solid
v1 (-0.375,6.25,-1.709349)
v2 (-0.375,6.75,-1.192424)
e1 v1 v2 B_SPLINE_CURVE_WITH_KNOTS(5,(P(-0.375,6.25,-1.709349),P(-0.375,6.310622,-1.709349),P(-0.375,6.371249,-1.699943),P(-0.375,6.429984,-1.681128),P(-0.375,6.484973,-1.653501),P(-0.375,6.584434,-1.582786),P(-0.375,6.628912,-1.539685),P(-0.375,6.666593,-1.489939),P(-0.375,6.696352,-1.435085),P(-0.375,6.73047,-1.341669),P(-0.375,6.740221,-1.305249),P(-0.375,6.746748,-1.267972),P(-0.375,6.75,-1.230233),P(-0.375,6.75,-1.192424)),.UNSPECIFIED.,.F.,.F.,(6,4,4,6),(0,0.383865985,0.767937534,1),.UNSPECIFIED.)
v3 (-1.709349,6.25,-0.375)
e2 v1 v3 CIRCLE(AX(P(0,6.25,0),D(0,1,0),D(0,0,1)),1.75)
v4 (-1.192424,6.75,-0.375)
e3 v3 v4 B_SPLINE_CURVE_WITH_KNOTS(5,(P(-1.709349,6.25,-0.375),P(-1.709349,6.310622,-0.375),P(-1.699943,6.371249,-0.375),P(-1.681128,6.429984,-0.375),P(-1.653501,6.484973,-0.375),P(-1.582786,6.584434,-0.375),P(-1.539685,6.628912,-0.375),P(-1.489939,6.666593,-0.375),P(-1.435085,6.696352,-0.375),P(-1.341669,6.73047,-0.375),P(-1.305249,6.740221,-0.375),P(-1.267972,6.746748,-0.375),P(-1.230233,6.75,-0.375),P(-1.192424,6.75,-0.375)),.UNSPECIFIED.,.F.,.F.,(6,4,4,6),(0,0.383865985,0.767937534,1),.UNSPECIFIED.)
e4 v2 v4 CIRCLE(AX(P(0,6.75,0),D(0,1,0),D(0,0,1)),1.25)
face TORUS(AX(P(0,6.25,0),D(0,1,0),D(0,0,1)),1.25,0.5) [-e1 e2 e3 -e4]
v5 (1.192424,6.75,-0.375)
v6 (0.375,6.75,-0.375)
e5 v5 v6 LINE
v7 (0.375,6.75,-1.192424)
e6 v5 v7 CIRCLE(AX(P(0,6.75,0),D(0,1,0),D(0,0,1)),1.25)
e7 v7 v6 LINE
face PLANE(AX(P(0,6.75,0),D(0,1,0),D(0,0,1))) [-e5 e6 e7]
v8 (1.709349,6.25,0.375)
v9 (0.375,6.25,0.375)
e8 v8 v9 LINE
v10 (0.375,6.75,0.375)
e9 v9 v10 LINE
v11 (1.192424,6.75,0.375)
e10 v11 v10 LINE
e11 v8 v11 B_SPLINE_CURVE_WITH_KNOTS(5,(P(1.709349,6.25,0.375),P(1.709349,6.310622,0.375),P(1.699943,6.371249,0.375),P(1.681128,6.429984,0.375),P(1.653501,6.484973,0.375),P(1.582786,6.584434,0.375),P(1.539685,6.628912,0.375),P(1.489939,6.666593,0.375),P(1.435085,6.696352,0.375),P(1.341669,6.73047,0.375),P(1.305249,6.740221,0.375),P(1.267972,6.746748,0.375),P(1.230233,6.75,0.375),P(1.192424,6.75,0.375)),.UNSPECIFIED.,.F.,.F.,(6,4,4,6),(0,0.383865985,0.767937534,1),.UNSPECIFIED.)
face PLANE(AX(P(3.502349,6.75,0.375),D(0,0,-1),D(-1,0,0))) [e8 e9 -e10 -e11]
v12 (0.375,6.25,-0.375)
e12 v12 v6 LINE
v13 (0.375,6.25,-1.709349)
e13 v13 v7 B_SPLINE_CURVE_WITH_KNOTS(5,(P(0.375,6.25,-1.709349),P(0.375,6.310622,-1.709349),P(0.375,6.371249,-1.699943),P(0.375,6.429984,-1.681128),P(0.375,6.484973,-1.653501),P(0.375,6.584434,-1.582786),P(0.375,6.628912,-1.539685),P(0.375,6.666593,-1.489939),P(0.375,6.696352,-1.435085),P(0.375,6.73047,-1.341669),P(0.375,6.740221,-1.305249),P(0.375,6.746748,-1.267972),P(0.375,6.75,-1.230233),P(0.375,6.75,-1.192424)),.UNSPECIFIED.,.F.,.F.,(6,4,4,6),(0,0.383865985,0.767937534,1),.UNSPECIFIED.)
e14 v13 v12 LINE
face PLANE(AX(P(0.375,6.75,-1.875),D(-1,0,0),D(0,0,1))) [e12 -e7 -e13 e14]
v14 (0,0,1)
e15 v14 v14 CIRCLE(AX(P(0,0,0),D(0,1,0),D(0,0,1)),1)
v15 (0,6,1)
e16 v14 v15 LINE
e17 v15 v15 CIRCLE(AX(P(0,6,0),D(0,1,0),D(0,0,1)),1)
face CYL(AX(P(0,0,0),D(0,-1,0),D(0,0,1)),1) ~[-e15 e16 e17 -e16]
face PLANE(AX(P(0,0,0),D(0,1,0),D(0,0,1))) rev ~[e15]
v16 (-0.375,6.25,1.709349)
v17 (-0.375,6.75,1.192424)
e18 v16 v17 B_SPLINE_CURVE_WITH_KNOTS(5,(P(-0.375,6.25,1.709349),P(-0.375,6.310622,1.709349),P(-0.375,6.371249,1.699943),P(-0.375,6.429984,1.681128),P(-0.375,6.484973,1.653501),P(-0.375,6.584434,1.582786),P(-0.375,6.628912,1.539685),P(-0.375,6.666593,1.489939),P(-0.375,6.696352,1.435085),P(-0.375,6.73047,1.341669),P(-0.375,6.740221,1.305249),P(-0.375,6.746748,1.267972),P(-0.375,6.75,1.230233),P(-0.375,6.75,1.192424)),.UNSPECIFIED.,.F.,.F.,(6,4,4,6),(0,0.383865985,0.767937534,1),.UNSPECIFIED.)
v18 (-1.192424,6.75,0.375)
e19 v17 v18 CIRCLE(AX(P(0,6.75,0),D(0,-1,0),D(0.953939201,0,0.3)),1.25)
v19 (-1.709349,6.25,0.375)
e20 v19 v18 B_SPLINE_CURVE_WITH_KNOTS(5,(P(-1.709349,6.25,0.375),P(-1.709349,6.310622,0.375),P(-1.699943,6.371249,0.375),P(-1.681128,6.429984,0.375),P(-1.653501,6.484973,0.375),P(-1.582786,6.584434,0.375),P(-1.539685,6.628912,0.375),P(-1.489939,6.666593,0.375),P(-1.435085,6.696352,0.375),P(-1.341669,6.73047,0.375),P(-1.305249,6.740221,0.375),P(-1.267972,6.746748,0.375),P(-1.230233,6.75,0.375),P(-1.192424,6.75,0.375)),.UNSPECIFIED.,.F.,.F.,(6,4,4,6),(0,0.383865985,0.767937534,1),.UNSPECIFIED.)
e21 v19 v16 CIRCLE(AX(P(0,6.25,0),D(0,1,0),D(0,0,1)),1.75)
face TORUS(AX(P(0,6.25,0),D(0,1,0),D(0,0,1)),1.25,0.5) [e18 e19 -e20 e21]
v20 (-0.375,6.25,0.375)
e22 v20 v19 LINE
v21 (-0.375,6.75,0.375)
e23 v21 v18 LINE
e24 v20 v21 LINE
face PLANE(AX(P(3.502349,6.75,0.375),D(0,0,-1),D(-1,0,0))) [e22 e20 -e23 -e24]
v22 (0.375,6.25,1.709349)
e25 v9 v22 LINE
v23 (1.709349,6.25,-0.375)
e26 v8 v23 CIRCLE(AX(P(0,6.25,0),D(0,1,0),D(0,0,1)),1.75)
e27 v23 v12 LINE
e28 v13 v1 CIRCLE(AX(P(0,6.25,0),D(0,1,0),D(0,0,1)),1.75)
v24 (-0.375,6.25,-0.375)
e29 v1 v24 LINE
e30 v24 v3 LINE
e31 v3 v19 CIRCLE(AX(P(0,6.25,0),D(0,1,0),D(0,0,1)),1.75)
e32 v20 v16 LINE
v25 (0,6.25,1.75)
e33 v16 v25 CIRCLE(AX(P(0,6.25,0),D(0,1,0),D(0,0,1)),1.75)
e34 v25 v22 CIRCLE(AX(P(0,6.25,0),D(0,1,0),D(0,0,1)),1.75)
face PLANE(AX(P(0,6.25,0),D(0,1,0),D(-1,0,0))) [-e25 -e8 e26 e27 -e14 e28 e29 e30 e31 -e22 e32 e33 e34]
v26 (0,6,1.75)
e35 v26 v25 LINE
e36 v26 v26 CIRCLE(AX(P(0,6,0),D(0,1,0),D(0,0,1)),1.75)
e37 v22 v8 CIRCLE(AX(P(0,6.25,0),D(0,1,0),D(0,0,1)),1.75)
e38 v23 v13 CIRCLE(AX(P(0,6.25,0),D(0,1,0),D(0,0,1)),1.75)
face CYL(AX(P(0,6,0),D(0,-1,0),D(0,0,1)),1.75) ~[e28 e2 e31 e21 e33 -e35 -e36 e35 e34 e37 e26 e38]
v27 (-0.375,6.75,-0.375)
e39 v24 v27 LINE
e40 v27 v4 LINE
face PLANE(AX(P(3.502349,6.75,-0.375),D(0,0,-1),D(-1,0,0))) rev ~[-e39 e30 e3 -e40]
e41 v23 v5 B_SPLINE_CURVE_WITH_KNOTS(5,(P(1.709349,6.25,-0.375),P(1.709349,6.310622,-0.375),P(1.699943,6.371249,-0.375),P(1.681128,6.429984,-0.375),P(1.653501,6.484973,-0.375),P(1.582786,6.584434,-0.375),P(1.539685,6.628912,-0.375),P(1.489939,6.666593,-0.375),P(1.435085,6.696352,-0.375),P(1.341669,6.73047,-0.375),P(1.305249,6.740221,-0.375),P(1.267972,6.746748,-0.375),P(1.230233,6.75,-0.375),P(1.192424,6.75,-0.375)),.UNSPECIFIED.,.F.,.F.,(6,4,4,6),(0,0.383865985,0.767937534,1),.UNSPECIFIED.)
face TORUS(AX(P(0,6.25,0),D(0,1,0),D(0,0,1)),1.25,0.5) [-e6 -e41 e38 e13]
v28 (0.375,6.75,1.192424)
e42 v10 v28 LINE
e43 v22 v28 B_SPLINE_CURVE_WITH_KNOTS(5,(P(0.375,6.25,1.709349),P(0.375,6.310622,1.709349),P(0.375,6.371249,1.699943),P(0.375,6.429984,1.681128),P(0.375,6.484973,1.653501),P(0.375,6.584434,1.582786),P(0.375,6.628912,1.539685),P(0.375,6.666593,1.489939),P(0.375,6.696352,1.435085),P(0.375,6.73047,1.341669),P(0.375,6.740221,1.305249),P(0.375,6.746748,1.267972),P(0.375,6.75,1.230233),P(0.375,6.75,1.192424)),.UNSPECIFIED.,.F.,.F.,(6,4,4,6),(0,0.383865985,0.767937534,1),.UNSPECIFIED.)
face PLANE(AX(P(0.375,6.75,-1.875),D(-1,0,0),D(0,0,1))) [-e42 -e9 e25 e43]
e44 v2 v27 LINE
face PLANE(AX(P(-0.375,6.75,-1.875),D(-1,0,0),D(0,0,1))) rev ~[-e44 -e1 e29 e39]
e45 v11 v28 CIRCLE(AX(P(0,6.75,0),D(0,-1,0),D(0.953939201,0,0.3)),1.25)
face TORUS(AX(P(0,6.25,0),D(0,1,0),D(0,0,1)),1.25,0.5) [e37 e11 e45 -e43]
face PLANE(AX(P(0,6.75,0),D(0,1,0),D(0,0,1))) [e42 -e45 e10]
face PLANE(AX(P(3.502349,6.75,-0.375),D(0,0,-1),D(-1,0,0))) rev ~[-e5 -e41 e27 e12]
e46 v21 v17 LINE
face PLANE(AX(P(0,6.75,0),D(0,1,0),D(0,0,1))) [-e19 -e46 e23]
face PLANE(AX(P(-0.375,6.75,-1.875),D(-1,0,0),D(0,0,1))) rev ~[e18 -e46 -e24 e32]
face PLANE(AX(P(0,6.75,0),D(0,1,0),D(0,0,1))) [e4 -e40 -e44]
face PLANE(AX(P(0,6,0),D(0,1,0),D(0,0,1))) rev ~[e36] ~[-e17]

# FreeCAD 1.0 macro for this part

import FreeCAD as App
import Part
import Sketcher
Q = App.Units.Quantity


def edges_at(feature, points):
    """Names of the edges that pass closest to the given points."""
    edges = feature.Shape.Edges
    near = lambda p: min(range(len(edges)), key=lambda i: edges[i].distToShape(Part.Vertex(*p))[0])
    return sorted({f"Edge{near(p) + 1}" for p in points})

doc = App.newDocument("Part")
params = doc.addObject("Spreadsheet::Sheet", "Params")
for row, (alias, value) in enumerate([
    ("sketch1_diameter", "2 mm"),
    ("pad1_length", "6 mm"),
    ("sketch2_diameter", "3.5 mm"),
    ("pad2_length", "0.75 mm"),
    ("fillet_radius", "0.5 mm"),
    ("sketch3_height", "0.75 mm"),
    ("pocket1_length", "0.5 mm"),
    ("sketch4_width", "0.75 mm"),
    ("sketch4_height", "3.75 mm"),
    ("pocket2_length", "0.5 mm"),
], start=1):
    params.set(f"A{row}", alias)
    params.set(f"B{row}", "=" + value)
    params.setAlias(f"B{row}", alias)

body = doc.addObject("PartDesign::Body", "Body")

# Sketch on XZ plane
sketch1 = body.newObject("Sketcher::SketchObject", "Sketch")
sketch1.AttachmentSupport = (doc.getObject("XZ_Plane"), [""])
sketch1.MapMode = "FlatFace"
sketch1.addGeometry(Part.Circle(App.Vector(0, 0, 0), App.Vector(0, 0, 1), 1), False)
sketch1.addConstraint(Sketcher.Constraint("Coincident", 0, 3, -1, 1))
sketch1.addConstraint(Sketcher.Constraint("Diameter", 0, Q("2 mm")))
sketch1.setExpression("Constraints[1]", "Params.sketch1_diameter")
pad1 = body.newObject("PartDesign::Pad", "Pad")
pad1.Profile = sketch1
pad1.setExpression("Length", "Params.pad1_length")
pad1.Reversed = True

# Sketch on XZ plane
sketch2 = body.newObject("Sketcher::SketchObject", "Sketch001")
sketch2.AttachmentSupport = (doc.getObject("XZ_Plane"), [""])
sketch2.MapMode = "FlatFace"
sketch2.AttachmentOffset = App.Placement(App.Vector(0, 0, -6), App.Rotation())
sketch2.addGeometry(Part.Circle(App.Vector(0, 0, 0), App.Vector(0, 0, 1), 1.8), False)
sketch2.addConstraint(Sketcher.Constraint("Coincident", 0, 3, -1, 1))
sketch2.addConstraint(Sketcher.Constraint("Diameter", 0, Q("3.5 mm")))
sketch2.setExpression("Constraints[1]", "Params.sketch2_diameter")
pad2 = body.newObject("PartDesign::Pad", "Pad001")
pad2.Profile = sketch2
pad2.setExpression("Length", "Params.pad2_length")
pad2.Reversed = True
doc.recompute()

fillet = body.newObject("PartDesign::Fillet", "Fillet")
fillet.Base = (pad2, edges_at(pad2, [(0, 6.75, -1.75)]))
fillet.setExpression("Radius", "Params.fillet_radius")

# Sketch on XZ plane
sketch3 = body.newObject("Sketcher::SketchObject", "Sketch002")
sketch3.AttachmentSupport = (doc.getObject("XZ_Plane"), [""])
sketch3.MapMode = "FlatFace"
sketch3.AttachmentOffset = App.Placement(App.Vector(0, 0, -6.75), App.Rotation())
sketch3.addGeometry(Part.LineSegment(App.Vector(3.5, 0.4, 0), App.Vector(3.5, -0.4, 0)), False)
sketch3.addGeometry(Part.LineSegment(App.Vector(3.5, -0.4, 0), App.Vector(-3.5, -0.4, 0)), False)
sketch3.addGeometry(Part.LineSegment(App.Vector(-3.5, -0.4, 0), App.Vector(-3.5, 0.4, 0)), False)
sketch3.addGeometry(Part.LineSegment(App.Vector(-3.5, 0.4, 0), App.Vector(3.5, 0.4, 0)), False)
sketch3.addConstraint(Sketcher.Constraint("Coincident", 0, 2, 1, 1))
sketch3.addConstraint(Sketcher.Constraint("Coincident", 1, 2, 2, 1))
sketch3.addConstraint(Sketcher.Constraint("Coincident", 2, 2, 3, 1))
sketch3.addConstraint(Sketcher.Constraint("Coincident", 3, 2, 0, 1))
sketch3.addConstraint(Sketcher.Constraint("Vertical", 0))
sketch3.addConstraint(Sketcher.Constraint("Horizontal", 1))
sketch3.addConstraint(Sketcher.Constraint("Vertical", 2))
sketch3.addConstraint(Sketcher.Constraint("Horizontal", 3))
sketch3.addConstraint(Sketcher.Constraint("Symmetric", 0, 2, 2, 2, -1, 1))
sketch3.addConstraint(Sketcher.Constraint("DistanceY", 0, 2, 0, 1, Q("0.75 mm")))
sketch3.addConstraint(Sketcher.Constraint("DistanceX", 1, 2, 1, 1, Q("7.004697 mm")))
sketch3.setExpression("Constraints[9]", "Params.sketch3_height")
pocket1 = body.newObject("PartDesign::Pocket", "Pocket")
pocket1.Profile = sketch3
pocket1.setExpression("Length", "Params.pocket1_length")
pocket1.Reversed = True

# Sketch on XZ plane
sketch4 = body.newObject("Sketcher::SketchObject", "Sketch003")
sketch4.AttachmentSupport = (doc.getObject("XZ_Plane"), [""])
sketch4.MapMode = "FlatFace"
sketch4.AttachmentOffset = App.Placement(App.Vector(0, 0, -6.75), App.Rotation())
sketch4.addGeometry(Part.LineSegment(App.Vector(0.4, 1.9, 0), App.Vector(0.4, -1.9, 0)), False)
sketch4.addGeometry(Part.LineSegment(App.Vector(0.4, -1.9, 0), App.Vector(-0.4, -1.9, 0)), False)
sketch4.addGeometry(Part.LineSegment(App.Vector(-0.4, -1.9, 0), App.Vector(-0.4, 1.9, 0)), False)
sketch4.addGeometry(Part.LineSegment(App.Vector(-0.4, 1.9, 0), App.Vector(0.4, 1.9, 0)), False)
sketch4.addConstraint(Sketcher.Constraint("Coincident", 0, 2, 1, 1))
sketch4.addConstraint(Sketcher.Constraint("Coincident", 1, 2, 2, 1))
sketch4.addConstraint(Sketcher.Constraint("Coincident", 2, 2, 3, 1))
sketch4.addConstraint(Sketcher.Constraint("Coincident", 3, 2, 0, 1))
sketch4.addConstraint(Sketcher.Constraint("Vertical", 0))
sketch4.addConstraint(Sketcher.Constraint("Horizontal", 1))
sketch4.addConstraint(Sketcher.Constraint("Vertical", 2))
sketch4.addConstraint(Sketcher.Constraint("Horizontal", 3))
sketch4.addConstraint(Sketcher.Constraint("Symmetric", 0, 2, 2, 2, -1, 1))
sketch4.addConstraint(Sketcher.Constraint("DistanceX", 1, 2, 1, 1, Q("0.75 mm")))
sketch4.addConstraint(Sketcher.Constraint("DistanceY", 0, 2, 0, 1, Q("3.75 mm")))
sketch4.setExpression("Constraints[9]", "Params.sketch4_width")
sketch4.setExpression("Constraints[10]", "Params.sketch4_height")
pocket2 = body.newObject("PartDesign::Pocket", "Pocket001")
pocket2.Profile = sketch4
pocket2.setExpression("Length", "Params.pocket2_length")
pocket2.Reversed = True

doc.recompute()
